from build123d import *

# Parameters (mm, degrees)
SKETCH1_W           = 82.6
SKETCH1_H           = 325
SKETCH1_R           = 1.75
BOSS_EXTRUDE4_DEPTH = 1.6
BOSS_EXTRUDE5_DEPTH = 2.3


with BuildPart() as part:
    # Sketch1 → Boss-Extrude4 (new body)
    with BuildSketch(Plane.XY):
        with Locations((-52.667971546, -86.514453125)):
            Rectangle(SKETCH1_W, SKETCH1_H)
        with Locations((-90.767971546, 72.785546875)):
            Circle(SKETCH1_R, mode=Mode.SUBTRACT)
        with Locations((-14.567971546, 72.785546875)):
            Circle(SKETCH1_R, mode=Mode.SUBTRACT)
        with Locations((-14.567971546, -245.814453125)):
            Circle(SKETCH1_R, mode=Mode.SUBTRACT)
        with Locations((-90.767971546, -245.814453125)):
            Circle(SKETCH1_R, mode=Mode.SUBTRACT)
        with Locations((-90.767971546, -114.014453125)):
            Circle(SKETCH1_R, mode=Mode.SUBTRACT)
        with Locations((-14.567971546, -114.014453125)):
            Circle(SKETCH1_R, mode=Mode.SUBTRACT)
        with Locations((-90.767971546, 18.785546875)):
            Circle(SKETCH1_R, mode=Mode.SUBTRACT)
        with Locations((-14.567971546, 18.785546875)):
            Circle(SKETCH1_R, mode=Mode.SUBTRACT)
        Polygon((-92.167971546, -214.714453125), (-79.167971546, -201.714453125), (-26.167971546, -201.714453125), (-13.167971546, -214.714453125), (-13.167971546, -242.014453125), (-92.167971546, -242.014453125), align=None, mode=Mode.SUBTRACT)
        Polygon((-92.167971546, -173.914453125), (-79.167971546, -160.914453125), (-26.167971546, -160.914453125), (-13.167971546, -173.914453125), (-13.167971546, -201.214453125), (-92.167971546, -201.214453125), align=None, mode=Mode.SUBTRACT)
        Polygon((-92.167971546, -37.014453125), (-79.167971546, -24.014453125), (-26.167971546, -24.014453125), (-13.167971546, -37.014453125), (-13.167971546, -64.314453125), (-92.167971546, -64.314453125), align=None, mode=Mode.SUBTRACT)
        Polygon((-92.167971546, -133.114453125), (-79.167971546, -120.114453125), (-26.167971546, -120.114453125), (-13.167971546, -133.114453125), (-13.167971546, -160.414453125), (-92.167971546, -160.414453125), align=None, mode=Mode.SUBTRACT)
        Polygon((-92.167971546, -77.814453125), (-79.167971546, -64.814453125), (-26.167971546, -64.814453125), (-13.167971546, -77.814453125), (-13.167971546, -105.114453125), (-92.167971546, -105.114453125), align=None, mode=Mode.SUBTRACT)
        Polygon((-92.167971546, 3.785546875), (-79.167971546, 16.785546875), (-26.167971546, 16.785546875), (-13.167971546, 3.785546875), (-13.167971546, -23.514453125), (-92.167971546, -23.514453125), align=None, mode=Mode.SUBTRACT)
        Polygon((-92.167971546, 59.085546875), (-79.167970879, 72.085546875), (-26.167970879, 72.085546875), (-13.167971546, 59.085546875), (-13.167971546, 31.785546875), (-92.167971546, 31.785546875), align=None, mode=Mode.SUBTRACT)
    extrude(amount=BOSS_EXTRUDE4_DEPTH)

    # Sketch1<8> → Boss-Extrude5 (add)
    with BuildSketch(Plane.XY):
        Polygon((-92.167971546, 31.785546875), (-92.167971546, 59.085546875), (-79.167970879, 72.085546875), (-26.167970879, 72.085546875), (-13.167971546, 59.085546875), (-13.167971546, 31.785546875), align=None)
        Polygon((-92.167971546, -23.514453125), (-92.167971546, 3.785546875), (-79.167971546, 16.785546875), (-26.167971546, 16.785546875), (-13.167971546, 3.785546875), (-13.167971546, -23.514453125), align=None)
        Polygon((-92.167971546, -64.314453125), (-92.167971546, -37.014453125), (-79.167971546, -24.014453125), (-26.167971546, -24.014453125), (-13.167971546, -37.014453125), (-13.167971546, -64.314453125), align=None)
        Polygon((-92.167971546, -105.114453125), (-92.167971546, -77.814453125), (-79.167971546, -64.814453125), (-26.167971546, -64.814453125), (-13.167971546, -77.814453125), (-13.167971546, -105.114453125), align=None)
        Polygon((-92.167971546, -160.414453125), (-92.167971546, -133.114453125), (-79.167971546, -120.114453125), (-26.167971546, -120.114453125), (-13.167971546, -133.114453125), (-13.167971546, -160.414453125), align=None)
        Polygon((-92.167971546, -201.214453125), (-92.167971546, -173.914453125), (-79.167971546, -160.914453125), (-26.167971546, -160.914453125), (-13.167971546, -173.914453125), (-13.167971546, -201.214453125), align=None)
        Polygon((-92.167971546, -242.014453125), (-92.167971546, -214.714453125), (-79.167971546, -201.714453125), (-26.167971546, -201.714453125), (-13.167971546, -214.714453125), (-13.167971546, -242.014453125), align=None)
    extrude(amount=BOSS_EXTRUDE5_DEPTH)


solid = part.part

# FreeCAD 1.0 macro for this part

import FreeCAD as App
import Part
import Sketcher

V = App.Vector
Q = App.Units.Quantity

doc = App.newDocument("Part")
params = doc.addObject("Spreadsheet::Sheet", "Params")
for row, (alias, value) in enumerate([
    ("sketch1_diameter", "3.5 mm"),
    ("sketch1_width", "53 mm"),
    ("sketch1_width2", "79 mm"),
    ("sketch1_height", "325 mm"),
    ("sketch1_width3", "82.6 mm"),
    ("pad1_length", "1.6 mm"),
    ("sketch2_width", "79 mm"),
    ("sketch2_width2", "53 mm"),
    ("sketch2_height", "27.3 mm"),
    ("pad2_length", "2.3 mm"),
], start=1):
    params.set(f"A{row}", alias)
    params.set(f"B{row}", "=" + value)
    params.setAlias(f"B{row}", alias)

body = doc.addObject("PartDesign::Body", "Body")

# Sketch on XY plane
sketch1 = body.newObject("Sketcher::SketchObject", "Sketch")
sketch1.AttachmentSupport = (doc.getObject("XY_Plane"), [""])
sketch1.MapMode = "FlatFace"
sketch1.addGeometry(Part.LineSegment(V(-93.967972, 75.985547, 0), V(-93.967972, -249.014453, 0)), False)
sketch1.addGeometry(Part.LineSegment(V(-93.967972, -249.014453, 0), V(-11.367972, -249.014453, 0)), False)
sketch1.addGeometry(Part.LineSegment(V(-11.367972, -249.014453, 0), V(-11.367972, 75.985547, 0)), False)
sketch1.addGeometry(Part.LineSegment(V(-11.367972, 75.985547, 0), V(-93.967972, 75.985547, 0)), False)
sketch1.addGeometry(Part.Circle(V(-90.767972, -245.814453, 0), V(0, 0, 1), 1.75), False)
sketch1.addGeometry(Part.Circle(V(-90.767972, -114.014453, 0), V(0, 0, 1), 1.75), False)
sketch1.addGeometry(Part.LineSegment(V(-92.167972, -242.014453, 0), V(-92.167972, -214.714453, 0)), False)
sketch1.addGeometry(Part.LineSegment(V(-92.167972, -214.714453, 0), V(-79.167972, -201.714453, 0)), False)
sketch1.addGeometry(Part.LineSegment(V(-79.167972, -201.714453, 0), V(-26.167972, -201.714453, 0)), False)
sketch1.addGeometry(Part.LineSegment(V(-26.167972, -201.714453, 0), V(-13.167972, -214.714453, 0)), False)
sketch1.addGeometry(Part.LineSegment(V(-13.167972, -214.714453, 0), V(-13.167972, -242.014453, 0)), False)
sketch1.addGeometry(Part.LineSegment(V(-13.167972, -242.014453, 0), V(-92.167972, -242.014453, 0)), False)
sketch1.addGeometry(Part.LineSegment(V(-92.167972, -201.214453, 0), V(-92.167972, -173.914453, 0)), False)
sketch1.addGeometry(Part.LineSegment(V(-92.167972, -173.914453, 0), V(-79.167972, -160.914453, 0)), False)
sketch1.addGeometry(Part.LineSegment(V(-79.167972, -160.914453, 0), V(-26.167972, -160.914453, 0)), False)
sketch1.addGeometry(Part.LineSegment(V(-26.167972, -160.914453, 0), V(-13.167972, -173.914453, 0)), False)
sketch1.addGeometry(Part.LineSegment(V(-13.167972, -173.914453, 0), V(-13.167972, -201.214453, 0)), False)
sketch1.addGeometry(Part.LineSegment(V(-13.167972, -201.214453, 0), V(-92.167972, -201.214453, 0)), False)
sketch1.addGeometry(Part.Circle(V(-14.567972, -245.814453, 0), V(0, 0, 1), 1.75), False)
sketch1.addGeometry(Part.LineSegment(V(-92.167972, -160.414453, 0), V(-92.167972, -133.114453, 0)), False)
sketch1.addGeometry(Part.LineSegment(V(-92.167972, -133.114453, 0), V(-79.167972, -120.114453, 0)), False)
sketch1.addGeometry(Part.LineSegment(V(-79.167972, -120.114453, 0), V(-26.167972, -120.114453, 0)), False)
sketch1.addGeometry(Part.LineSegment(V(-26.167972, -120.114453, 0), V(-13.167972, -133.114453, 0)), False)
sketch1.addGeometry(Part.LineSegment(V(-13.167972, -133.114453, 0), V(-13.167972, -160.414453, 0)), False)
sketch1.addGeometry(Part.LineSegment(V(-13.167972, -160.414453, 0), V(-92.167972, -160.414453, 0)), False)
sketch1.addGeometry(Part.Circle(V(-14.567972, -114.014453, 0), V(0, 0, 1), 1.75), False)
sketch1.addGeometry(Part.Circle(V(-90.767972, 18.785547, 0), V(0, 0, 1), 1.75), False)
sketch1.addGeometry(Part.Circle(V(-90.767972, 72.785547, 0), V(0, 0, 1), 1.75), False)
sketch1.addGeometry(Part.LineSegment(V(-92.167972, -105.114453, 0), V(-92.167972, -77.814453, 0)), False)
sketch1.addGeometry(Part.LineSegment(V(-92.167972, -77.814453, 0), V(-79.167972, -64.814453, 0)), False)
sketch1.addGeometry(Part.LineSegment(V(-79.167972, -64.814453, 0), V(-26.167972, -64.814453, 0)), False)
sketch1.addGeometry(Part.LineSegment(V(-26.167972, -64.814453, 0), V(-13.167972, -77.814453, 0)), False)
sketch1.addGeometry(Part.LineSegment(V(-13.167972, -77.814453, 0), V(-13.167972, -105.114453, 0)), False)
sketch1.addGeometry(Part.LineSegment(V(-13.167972, -105.114453, 0), V(-92.167972, -105.114453, 0)), False)
sketch1.addGeometry(Part.LineSegment(V(-92.167972, -64.314453, 0), V(-92.167972, -37.014453, 0)), False)
sketch1.addGeometry(Part.LineSegment(V(-92.167972, -37.014453, 0), V(-79.167972, -24.014453, 0)), False)
sketch1.addGeometry(Part.LineSegment(V(-79.167972, -24.014453, 0), V(-26.167972, -24.014453, 0)), False)
sketch1.addGeometry(Part.LineSegment(V(-26.167972, -24.014453, 0), V(-13.167972, -37.014453, 0)), False)
sketch1.addGeometry(Part.LineSegment(V(-13.167972, -37.014453, 0), V(-13.167972, -64.314453, 0)), False)
sketch1.addGeometry(Part.LineSegment(V(-13.167972, -64.314453, 0), V(-92.167972, -64.314453, 0)), False)
sketch1.addGeometry(Part.LineSegment(V(-92.167972, -23.514453, 0), V(-92.167972, 3.785547, 0)), False)
sketch1.addGeometry(Part.LineSegment(V(-92.167972, 3.785547, 0), V(-79.167972, 16.785547, 0)), False)
sketch1.addGeometry(Part.LineSegment(V(-79.167972, 16.785547, 0), V(-26.167972, 16.785547, 0)), False)
sketch1.addGeometry(Part.LineSegment(V(-26.167972, 16.785547, 0), V(-13.167972, 3.785547, 0)), False)
sketch1.addGeometry(Part.LineSegment(V(-13.167972, 3.785547, 0), V(-13.167972, -23.514453, 0)), False)
sketch1.addGeometry(Part.LineSegment(V(-13.167972, -23.514453, 0), V(-92.167972, -23.514453, 0)), False)
sketch1.addGeometry(Part.LineSegment(V(-92.167972, 31.785547, 0), V(-92.167972, 59.085547, 0)), False)
sketch1.addGeometry(Part.LineSegment(V(-92.167972, 59.085547, 0), V(-79.167971, 72.085547, 0)), False)
sketch1.addGeometry(Part.LineSegment(V(-79.167971, 72.085547, 0), V(-26.167971, 72.085547, 0)), False)
sketch1.addGeometry(Part.LineSegment(V(-26.167971, 72.085547, 0), V(-13.167972, 59.085547, 0)), False)
sketch1.addGeometry(Part.LineSegment(V(-13.167972, 59.085547, 0), V(-13.167972, 31.785547, 0)), False)
sketch1.addGeometry(Part.LineSegment(V(-13.167972, 31.785547, 0), V(-92.167972, 31.785547, 0)), False)
sketch1.addGeometry(Part.Circle(V(-14.567972, 18.785547, 0), V(0, 0, 1), 1.75), False)
sketch1.addGeometry(Part.Circle(V(-14.567972, 72.785547, 0), V(0, 0, 1), 1.75), False)
sketch1.addConstraint(Sketcher.Constraint("Coincident", 0, 2, 1, 1))
sketch1.addConstraint(Sketcher.Constraint("Coincident", 1, 2, 2, 1))
sketch1.addConstraint(Sketcher.Constraint("Coincident", 2, 2, 3, 1))
sketch1.addConstraint(Sketcher.Constraint("Coincident", 3, 2, 0, 1))
sketch1.addConstraint(Sketcher.Constraint("Coincident", 6, 2, 7, 1))
sketch1.addConstraint(Sketcher.Constraint("Coincident", 7, 2, 8, 1))
sketch1.addConstraint(Sketcher.Constraint("Coincident", 8, 2, 9, 1))
sketch1.addConstraint(Sketcher.Constraint("Coincident", 9, 2, 10, 1))
sketch1.addConstraint(Sketcher.Constraint("Coincident", 10, 2, 11, 1))
sketch1.addConstraint(Sketcher.Constraint("Coincident", 11, 2, 6, 1))
sketch1.addConstraint(Sketcher.Constraint("Coincident", 12, 2, 13, 1))
sketch1.addConstraint(Sketcher.Constraint("Coincident", 13, 2, 14, 1))
sketch1.addConstraint(Sketcher.Constraint("Coincident", 14, 2, 15, 1))
sketch1.addConstraint(Sketcher.Constraint("Coincident", 15, 2, 16, 1))
sketch1.addConstraint(Sketcher.Constraint("Coincident", 16, 2, 17, 1))
sketch1.addConstraint(Sketcher.Constraint("Coincident", 17, 2, 12, 1))
sketch1.addConstraint(Sketcher.Constraint("Coincident", 19, 2, 20, 1))
sketch1.addConstraint(Sketcher.Constraint("Coincident", 20, 2, 21, 1))
sketch1.addConstraint(Sketcher.Constraint("Coincident", 21, 2, 22, 1))
sketch1.addConstraint(Sketcher.Constraint("Coincident", 22, 2, 23, 1))
sketch1.addConstraint(Sketcher.Constraint("Coincident", 23, 2, 24, 1))
sketch1.addConstraint(Sketcher.Constraint("Coincident", 24, 2, 19, 1))
sketch1.addConstraint(Sketcher.Constraint("Coincident", 28, 2, 29, 1))
sketch1.addConstraint(Sketcher.Constraint("Coincident", 29, 2, 30, 1))
sketch1.addConstraint(Sketcher.Constraint("Coincident", 30, 2, 31, 1))
sketch1.addConstraint(Sketcher.Constraint("Coincident", 31, 2, 32, 1))
sketch1.addConstraint(Sketcher.Constraint("Coincident", 32, 2, 33, 1))
sketch1.addConstraint(Sketcher.Constraint("Coincident", 33, 2, 28, 1))
sketch1.addConstraint(Sketcher.Constraint("Coincident", 34, 2, 35, 1))
sketch1.addConstraint(Sketcher.Constraint("Coincident", 35, 2, 36, 1))
sketch1.addConstraint(Sketcher.Constraint("Coincident", 36, 2, 37, 1))
sketch1.addConstraint(Sketcher.Constraint("Coincident", 37, 2, 38, 1))
sketch1.addConstraint(Sketcher.Constraint("Coincident", 38, 2, 39, 1))
sketch1.addConstraint(Sketcher.Constraint("Coincident", 39, 2, 34, 1))
sketch1.addConstraint(Sketcher.Constraint("Coincident", 40, 2, 41, 1))
sketch1.addConstraint(Sketcher.Constraint("Coincident", 41, 2, 42, 1))
sketch1.addConstraint(Sketcher.Constraint("Coincident", 42, 2, 43, 1))
sketch1.addConstraint(Sketcher.Constraint("Coincident", 43, 2, 44, 1))
sketch1.addConstraint(Sketcher.Constraint("Coincident", 44, 2, 45, 1))
sketch1.addConstraint(Sketcher.Constraint("Coincident", 45, 2, 40, 1))
sketch1.addConstraint(Sketcher.Constraint("Coincident", 46, 2, 47, 1))
sketch1.addConstraint(Sketcher.Constraint("Coincident", 47, 2, 48, 1))
sketch1.addConstraint(Sketcher.Constraint("Coincident", 48, 2, 49, 1))
sketch1.addConstraint(Sketcher.Constraint("Coincident", 49, 2, 50, 1))
sketch1.addConstraint(Sketcher.Constraint("Coincident", 50, 2, 51, 1))
sketch1.addConstraint(Sketcher.Constraint("Coincident", 51, 2, 46, 1))
sketch1.addConstraint(Sketcher.Constraint("Vertical", 0))
sketch1.addConstraint(Sketcher.Constraint("Horizontal", 1))
sketch1.addConstraint(Sketcher.Constraint("Vertical", 2))
sketch1.addConstraint(Sketcher.Constraint("Horizontal", 3))
sketch1.addConstraint(Sketcher.Constraint("Vertical", 6))
sketch1.addConstraint(Sketcher.Constraint("Horizontal", 8))
sketch1.addConstraint(Sketcher.Constraint("Vertical", 10))
sketch1.addConstraint(Sketcher.Constraint("Horizontal", 11))
sketch1.addConstraint(Sketcher.Constraint("Vertical", 12))
sketch1.addConstraint(Sketcher.Constraint("Horizontal", 14))
sketch1.addConstraint(Sketcher.Constraint("Vertical", 16))
sketch1.addConstraint(Sketcher.Constraint("Horizontal", 17))
sketch1.addConstraint(Sketcher.Constraint("Vertical", 19))
sketch1.addConstraint(Sketcher.Constraint("Horizontal", 21))
sketch1.addConstraint(Sketcher.Constraint("Vertical", 23))
sketch1.addConstraint(Sketcher.Constraint("Horizontal", 24))
sketch1.addConstraint(Sketcher.Constraint("Vertical", 28))
sketch1.addConstraint(Sketcher.Constraint("Horizontal", 30))
sketch1.addConstraint(Sketcher.Constraint("Vertical", 32))
sketch1.addConstraint(Sketcher.Constraint("Horizontal", 33))
sketch1.addConstraint(Sketcher.Constraint("Vertical", 34))
sketch1.addConstraint(Sketcher.Constraint("Horizontal", 36))
sketch1.addConstraint(Sketcher.Constraint("Vertical", 38))
sketch1.addConstraint(Sketcher.Constraint("Horizontal", 39))
sketch1.addConstraint(Sketcher.Constraint("Vertical", 40))
sketch1.addConstraint(Sketcher.Constraint("Horizontal", 42))
sketch1.addConstraint(Sketcher.Constraint("Vertical", 44))
sketch1.addConstraint(Sketcher.Constraint("Horizontal", 45))
sketch1.addConstraint(Sketcher.Constraint("Vertical", 46))
sketch1.addConstraint(Sketcher.Constraint("Horizontal", 48))
sketch1.addConstraint(Sketcher.Constraint("Vertical", 50))
sketch1.addConstraint(Sketcher.Constraint("Horizontal", 51))
sketch1.addConstraint(Sketcher.Constraint("Equal", 4, 5))
sketch1.addConstraint(Sketcher.Constraint("Equal", 5, 18))
sketch1.addConstraint(Sketcher.Constraint("Equal", 18, 25))
sketch1.addConstraint(Sketcher.Constraint("Equal", 25, 26))
sketch1.addConstraint(Sketcher.Constraint("Equal", 26, 27))
sketch1.addConstraint(Sketcher.Constraint("Equal", 27, 52))
sketch1.addConstraint(Sketcher.Constraint("Equal", 52, 53))
sketch1.addConstraint(Sketcher.Constraint("Perpendicular", 7, 9))
sketch1.addConstraint(Sketcher.Constraint("Perpendicular", 9, 13))
sketch1.addConstraint(Sketcher.Constraint("Perpendicular", 13, 15))
sketch1.addConstraint(Sketcher.Constraint("Perpendicular", 15, 20))
sketch1.addConstraint(Sketcher.Constraint("Perpendicular", 20, 22))
sketch1.addConstraint(Sketcher.Constraint("Perpendicular", 22, 29))
sketch1.addConstraint(Sketcher.Constraint("Perpendicular", 29, 31))
sketch1.addConstraint(Sketcher.Constraint("Perpendicular", 31, 35))
sketch1.addConstraint(Sketcher.Constraint("Perpendicular", 35, 37))
sketch1.addConstraint(Sketcher.Constraint("Perpendicular", 37, 41))
sketch1.addConstraint(Sketcher.Constraint("Perpendicular", 41, 43))
sketch1.addConstraint(Sketcher.Constraint("Perpendicular", 43, 47))
sketch1.addConstraint(Sketcher.Constraint("Perpendicular", 47, 49))
sketch1.addConstraint(Sketcher.Constraint("Horizontal", 4, 3, 18, 3))
sketch1.addConstraint(Sketcher.Constraint("Horizontal", 5, 3, 25, 3))
sketch1.addConstraint(Sketcher.Constraint("Horizontal", 26, 3, 52, 3))
sketch1.addConstraint(Sketcher.Constraint("Horizontal", 27, 3, 53, 3))
sketch1.addConstraint(Sketcher.Constraint("Horizontal", 6, 2, 9, 2))
sketch1.addConstraint(Sketcher.Constraint("Horizontal", 12, 2, 15, 2))
sketch1.addConstraint(Sketcher.Constraint("Horizontal", 19, 2, 22, 2))
sketch1.addConstraint(Sketcher.Constraint("Horizontal", 28, 2, 31, 2))
sketch1.addConstraint(Sketcher.Constraint("Horizontal", 34, 2, 37, 2))
sketch1.addConstraint(Sketcher.Constraint("Horizontal", 40, 2, 43, 2))
sketch1.addConstraint(Sketcher.Constraint("Horizontal", 46, 2, 49, 2))
sketch1.addConstraint(Sketcher.Constraint("Vertical", 4, 3, 5, 3))
sketch1.addConstraint(Sketcher.Constraint("Vertical", 18, 3, 25, 3))
sketch1.addConstraint(Sketcher.Constraint("Vertical", 5, 3, 26, 3))
sketch1.addConstraint(Sketcher.Constraint("Vertical", 26, 3, 27, 3))
sketch1.addConstraint(Sketcher.Constraint("Vertical", 25, 3, 52, 3))
sketch1.addConstraint(Sketcher.Constraint("Vertical", 52, 3, 53, 3))
sketch1.addConstraint(Sketcher.Constraint("Vertical", 11, 2, 12, 2))
sketch1.addConstraint(Sketcher.Constraint("Vertical", 7, 2, 13, 2))
sketch1.addConstraint(Sketcher.Constraint("Vertical", 8, 2, 14, 2))
sketch1.addConstraint(Sketcher.Constraint("Vertical", 17, 2, 19, 2))
sketch1.addConstraint(Sketcher.Constraint("Vertical", 13, 2, 20, 2))
sketch1.addConstraint(Sketcher.Constraint("Vertical", 14, 2, 21, 2))
sketch1.addConstraint(Sketcher.Constraint("Vertical", 24, 2, 28, 2))
sketch1.addConstraint(Sketcher.Constraint("Vertical", 20, 2, 29, 2))
sketch1.addConstraint(Sketcher.Constraint("Vertical", 21, 2, 30, 2))
sketch1.addConstraint(Sketcher.Constraint("Vertical", 33, 2, 34, 2))
sketch1.addConstraint(Sketcher.Constraint("Vertical", 29, 2, 35, 2))
sketch1.addConstraint(Sketcher.Constraint("Vertical", 30, 2, 36, 2))
sketch1.addConstraint(Sketcher.Constraint("Vertical", 39, 2, 40, 2))
sketch1.addConstraint(Sketcher.Constraint("Vertical", 35, 2, 41, 2))
sketch1.addConstraint(Sketcher.Constraint("Vertical", 36, 2, 42, 2))
sketch1.addConstraint(Sketcher.Constraint("Vertical", 45, 2, 46, 2))
sketch1.addConstraint(Sketcher.Constraint("Vertical", 41, 2, 47, 2))
sketch1.addConstraint(Sketcher.Constraint("Vertical", 42, 2, 48, 2))
sketch1.addConstraint(Sketcher.Constraint("Equal", 10, 12))
sketch1.addConstraint(Sketcher.Constraint("Equal", 16, 19))
sketch1.addConstraint(Sketcher.Constraint("Equal", 23, 28))
sketch1.addConstraint(Sketcher.Constraint("Equal", 32, 34))
sketch1.addConstraint(Sketcher.Constraint("Equal", 38, 40))
sketch1.addConstraint(Sketcher.Constraint("Equal", 44, 46))
sketch1.addConstraint(Sketcher.Constraint("Equal", 7, 9))
sketch1.addConstraint(Sketcher.Constraint("Diameter", 4, Q("3.5 mm")))
sketch1.addConstraint(Sketcher.Constraint("DistanceX", 8, 1, 8, 2, Q("53 mm")))
sketch1.addConstraint(Sketcher.Constraint("DistanceX", 11, 2, 11, 1, Q("79 mm")))
sketch1.addConstraint(Sketcher.Constraint("DistanceY", 0, 2, 0, 1, Q("325 mm")))
sketch1.addConstraint(Sketcher.Constraint("DistanceX", 1, 1, 1, 2, Q("82.6 mm")))
sketch1.addConstraint(Sketcher.Constraint("DistanceY", 6, 1, 6, 2, Q("27.3 mm")))
sketch1.addConstraint(Sketcher.Constraint("DistanceY", 26, 3, 27, 3, Q("54 mm")))
sketch1.addConstraint(Sketcher.Constraint("DistanceY", 0, 2, 5, 3, Q("135 mm")))
sketch1.addConstraint(Sketcher.Constraint("DistanceY", 1, 2, 10, 2, Q("7 mm")))
sketch1.addConstraint(Sketcher.Constraint("DistanceY", 21, 2, 32, 2, Q("15 mm")))
sketch1.addConstraint(Sketcher.Constraint("DistanceY", 40, 2, 26, 3, Q("15 mm")))
sketch1.addConstraint(Sketcher.Constraint("DistanceY", 52, 3, 50, 2, Q("13 mm")))
sketch1.addConstraint(Sketcher.Constraint("DistanceY", 4, 3, 5, 3, Q("131.8 mm")))
sketch1.addConstraint(Sketcher.Constraint("DistanceX", 4, 3, 18, 3, Q("76.2 mm")))
sketch1.addConstraint(Sketcher.Constraint("DistanceY", 5, 3, 26, 3, Q("132.8 mm")))
sketch1.addConstraint(Sketcher.Constraint("DistanceX", 0, 2, 4, 3, Q("3.2 mm")))
sketch1.addConstraint(Sketcher.Constraint("DistanceX", 6, 2, 4, 3, Q("1.4 mm")))
sketch1.addConstraint(Sketcher.Constraint("DistanceY", 7, 2, 12, 2, Q("27.8 mm")))
sketch1.addConstraint(Sketcher.Constraint("DistanceY", 19, 2, 5, 3, Q("19.1 mm")))
sketch1.addConstraint(Sketcher.Constraint("DistanceY", 29, 2, 34, 2, Q("27.8 mm")))
sketch1.addConstraint(Sketcher.Constraint("DistanceX", 4, 3, -1, 1, Q("90.767972 mm")))
sketch1.addConstraint(Sketcher.Constraint("DistanceY", 4, 3, -1, 1, Q("245.814453 mm")))
sketch1.setExpression("Constraints[140]", "Params.sketch1_diameter")
sketch1.setExpression("Constraints[141]", "Params.sketch1_width")
sketch1.setExpression("Constraints[142]", "Params.sketch1_width2")
sketch1.setExpression("Constraints[143]", "Params.sketch1_height")
sketch1.setExpression("Constraints[144]", "Params.sketch1_width3")
pad1 = body.newObject("PartDesign::Pad", "Pad")
pad1.Profile = sketch1
pad1.setExpression("Length", "Params.pad1_length")

# Sketch on XY plane
sketch2 = body.newObject("Sketcher::SketchObject", "Sketch001")
sketch2.AttachmentSupport = (doc.getObject("XY_Plane"), [""])
sketch2.MapMode = "FlatFace"
sketch2.addGeometry(Part.LineSegment(V(-92.167972, 59.085547, 0), V(-92.167972, 31.785547, 0)), False)
sketch2.addGeometry(Part.LineSegment(V(-92.167972, 31.785547, 0), V(-13.167972, 31.785547, 0)), False)
sketch2.addGeometry(Part.LineSegment(V(-13.167972, 31.785547, 0), V(-13.167972, 59.085547, 0)), False)
sketch2.addGeometry(Part.LineSegment(V(-13.167972, 59.085547, 0), V(-26.167971, 72.085547, 0)), False)
sketch2.addGeometry(Part.LineSegment(V(-26.167971, 72.085547, 0), V(-79.167971, 72.085547, 0)), False)
sketch2.addGeometry(Part.LineSegment(V(-79.167971, 72.085547, 0), V(-92.167972, 59.085547, 0)), False)
sketch2.addGeometry(Part.LineSegment(V(-92.167972, 3.785547, 0), V(-92.167972, -23.514453, 0)), False)
sketch2.addGeometry(Part.LineSegment(V(-92.167972, -23.514453, 0), V(-13.167972, -23.514453, 0)), False)
sketch2.addGeometry(Part.LineSegment(V(-13.167972, -23.514453, 0), V(-13.167972, 3.785547, 0)), False)
sketch2.addGeometry(Part.LineSegment(V(-13.167972, 3.785547, 0), V(-26.167972, 16.785547, 0)), False)
sketch2.addGeometry(Part.LineSegment(V(-26.167972, 16.785547, 0), V(-79.167972, 16.785547, 0)), False)
sketch2.addGeometry(Part.LineSegment(V(-79.167972, 16.785547, 0), V(-92.167972, 3.785547, 0)), False)
sketch2.addGeometry(Part.LineSegment(V(-92.167972, -37.014453, 0), V(-92.167972, -64.314453, 0)), False)
sketch2.addGeometry(Part.LineSegment(V(-92.167972, -64.314453, 0), V(-13.167972, -64.314453, 0)), False)
sketch2.addGeometry(Part.LineSegment(V(-13.167972, -64.314453, 0), V(-13.167972, -37.014453, 0)), False)
sketch2.addGeometry(Part.LineSegment(V(-13.167972, -37.014453, 0), V(-26.167972, -24.014453, 0)), False)
sketch2.addGeometry(Part.LineSegment(V(-26.167972, -24.014453, 0), V(-79.167972, -24.014453, 0)), False)
sketch2.addGeometry(Part.LineSegment(V(-79.167972, -24.014453, 0), V(-92.167972, -37.014453, 0)), False)
sketch2.addGeometry(Part.LineSegment(V(-92.167972, -77.814453, 0), V(-92.167972, -105.114453, 0)), False)
sketch2.addGeometry(Part.LineSegment(V(-92.167972, -105.114453, 0), V(-13.167972, -105.114453, 0)), False)
sketch2.addGeometry(Part.LineSegment(V(-13.167972, -105.114453, 0), V(-13.167972, -77.814453, 0)), False)
sketch2.addGeometry(Part.LineSegment(V(-13.167972, -77.814453, 0), V(-26.167972, -64.814453, 0)), False)
sketch2.addGeometry(Part.LineSegment(V(-26.167972, -64.814453, 0), V(-79.167972, -64.814453, 0)), False)
sketch2.addGeometry(Part.LineSegment(V(-79.167972, -64.814453, 0), V(-92.167972, -77.814453, 0)), False)
sketch2.addGeometry(Part.LineSegment(V(-92.167972, -133.114453, 0), V(-92.167972, -160.414453, 0)), False)
sketch2.addGeometry(Part.LineSegment(V(-92.167972, -160.414453, 0), V(-13.167972, -160.414453, 0)), False)
sketch2.addGeometry(Part.LineSegment(V(-13.167972, -160.414453, 0), V(-13.167972, -133.114453, 0)), False)
sketch2.addGeometry(Part.LineSegment(V(-13.167972, -133.114453, 0), V(-26.167972, -120.114453, 0)), False)
sketch2.addGeometry(Part.LineSegment(V(-26.167972, -120.114453, 0), V(-79.167972, -120.114453, 0)), False)
sketch2.addGeometry(Part.LineSegment(V(-79.167972, -120.114453, 0), V(-92.167972, -133.114453, 0)), False)
sketch2.addGeometry(Part.LineSegment(V(-92.167972, -173.914453, 0), V(-92.167972, -201.214453, 0)), False)
sketch2.addGeometry(Part.LineSegment(V(-92.167972, -201.214453, 0), V(-13.167972, -201.214453, 0)), False)
sketch2.addGeometry(Part.LineSegment(V(-13.167972, -201.214453, 0), V(-13.167972, -173.914453, 0)), False)
sketch2.addGeometry(Part.LineSegment(V(-13.167972, -173.914453, 0), V(-26.167972, -160.914453, 0)), False)
sketch2.addGeometry(Part.LineSegment(V(-26.167972, -160.914453, 0), V(-79.167972, -160.914453, 0)), False)
sketch2.addGeometry(Part.LineSegment(V(-79.167972, -160.914453, 0), V(-92.167972, -173.914453, 0)), False)
sketch2.addGeometry(Part.LineSegment(V(-92.167972, -214.714453, 0), V(-92.167972, -242.014453, 0)), False)
sketch2.addGeometry(Part.LineSegment(V(-92.167972, -242.014453, 0), V(-13.167972, -242.014453, 0)), False)
sketch2.addGeometry(Part.LineSegment(V(-13.167972, -242.014453, 0), V(-13.167972, -214.714453, 0)), False)
sketch2.addGeometry(Part.LineSegment(V(-13.167972, -214.714453, 0), V(-26.167972, -201.714453, 0)), False)
sketch2.addGeometry(Part.LineSegment(V(-26.167972, -201.714453, 0), V(-79.167972, -201.714453, 0)), False)
sketch2.addGeometry(Part.LineSegment(V(-79.167972, -201.714453, 0), V(-92.167972, -214.714453, 0)), False)
sketch2.addConstraint(Sketcher.Constraint("Coincident", 0, 2, 1, 1))
sketch2.addConstraint(Sketcher.Constraint("Coincident", 1, 2, 2, 1))
sketch2.addConstraint(Sketcher.Constraint("Coincident", 2, 2, 3, 1))
sketch2.addConstraint(Sketcher.Constraint("Coincident", 3, 2, 4, 1))
sketch2.addConstraint(Sketcher.Constraint("Coincident", 4, 2, 5, 1))
sketch2.addConstraint(Sketcher.Constraint("Coincident", 5, 2, 0, 1))
sketch2.addConstraint(Sketcher.Constraint("Coincident", 6, 2, 7, 1))
sketch2.addConstraint(Sketcher.Constraint("Coincident", 7, 2, 8, 1))
sketch2.addConstraint(Sketcher.Constraint("Coincident", 8, 2, 9, 1))
sketch2.addConstraint(Sketcher.Constraint("Coincident", 9, 2, 10, 1))
sketch2.addConstraint(Sketcher.Constraint("Coincident", 10, 2, 11, 1))
sketch2.addConstraint(Sketcher.Constraint("Coincident", 11, 2, 6, 1))
sketch2.addConstraint(Sketcher.Constraint("Coincident", 12, 2, 13, 1))
sketch2.addConstraint(Sketcher.Constraint("Coincident", 13, 2, 14, 1))
sketch2.addConstraint(Sketcher.Constraint("Coincident", 14, 2, 15, 1))
sketch2.addConstraint(Sketcher.Constraint("Coincident", 15, 2, 16, 1))
sketch2.addConstraint(Sketcher.Constraint("Coincident", 16, 2, 17, 1))
sketch2.addConstraint(Sketcher.Constraint("Coincident", 17, 2, 12, 1))
sketch2.addConstraint(Sketcher.Constraint("Coincident", 18, 2, 19, 1))
sketch2.addConstraint(Sketcher.Constraint("Coincident", 19, 2, 20, 1))
sketch2.addConstraint(Sketcher.Constraint("Coincident", 20, 2, 21, 1))
sketch2.addConstraint(Sketcher.Constraint("Coincident", 21, 2, 22, 1))
sketch2.addConstraint(Sketcher.Constraint("Coincident", 22, 2, 23, 1))
sketch2.addConstraint(Sketcher.Constraint("Coincident", 23, 2, 18, 1))
sketch2.addConstraint(Sketcher.Constraint("Coincident", 24, 2, 25, 1))
sketch2.addConstraint(Sketcher.Constraint("Coincident", 25, 2, 26, 1))
sketch2.addConstraint(Sketcher.Constraint("Coincident", 26, 2, 27, 1))
sketch2.addConstraint(Sketcher.Constraint("Coincident", 27, 2, 28, 1))
sketch2.addConstraint(Sketcher.Constraint("Coincident", 28, 2, 29, 1))
sketch2.addConstraint(Sketcher.Constraint("Coincident", 29, 2, 24, 1))
sketch2.addConstraint(Sketcher.Constraint("Coincident", 30, 2, 31, 1))
sketch2.addConstraint(Sketcher.Constraint("Coincident", 31, 2, 32, 1))
sketch2.addConstraint(Sketcher.Constraint("Coincident", 32, 2, 33, 1))
sketch2.addConstraint(Sketcher.Constraint("Coincident", 33, 2, 34, 1))
sketch2.addConstraint(Sketcher.Constraint("Coincident", 34, 2, 35, 1))
sketch2.addConstraint(Sketcher.Constraint("Coincident", 35, 2, 30, 1))
sketch2.addConstraint(Sketcher.Constraint("Coincident", 36, 2, 37, 1))
sketch2.addConstraint(Sketcher.Constraint("Coincident", 37, 2, 38, 1))
sketch2.addConstraint(Sketcher.Constraint("Coincident", 38, 2, 39, 1))
sketch2.addConstraint(Sketcher.Constraint("Coincident", 39, 2, 40, 1))
sketch2.addConstraint(Sketcher.Constraint("Coincident", 40, 2, 41, 1))
sketch2.addConstraint(Sketcher.Constraint("Coincident", 41, 2, 36, 1))
sketch2.addConstraint(Sketcher.Constraint("Vertical", 0))
sketch2.addConstraint(Sketcher.Constraint("Horizontal", 1))
sketch2.addConstraint(Sketcher.Constraint("Vertical", 2))
sketch2.addConstraint(Sketcher.Constraint("Horizontal", 4))
sketch2.addConstraint(Sketcher.Constraint("Vertical", 6))
sketch2.addConstraint(Sketcher.Constraint("Horizontal", 7))
sketch2.addConstraint(Sketcher.Constraint("Vertical", 8))
sketch2.addConstraint(Sketcher.Constraint("Horizontal", 10))
sketch2.addConstraint(Sketcher.Constraint("Vertical", 12))
sketch2.addConstraint(Sketcher.Constraint("Horizontal", 13))
sketch2.addConstraint(Sketcher.Constraint("Vertical", 14))
sketch2.addConstraint(Sketcher.Constraint("Horizontal", 16))
sketch2.addConstraint(Sketcher.Constraint("Vertical", 18))
sketch2.addConstraint(Sketcher.Constraint("Horizontal", 19))
sketch2.addConstraint(Sketcher.Constraint("Vertical", 20))
sketch2.addConstraint(Sketcher.Constraint("Horizontal", 22))
sketch2.addConstraint(Sketcher.Constraint("Vertical", 24))
sketch2.addConstraint(Sketcher.Constraint("Horizontal", 25))
sketch2.addConstraint(Sketcher.Constraint("Vertical", 26))
sketch2.addConstraint(Sketcher.Constraint("Horizontal", 28))
sketch2.addConstraint(Sketcher.Constraint("Vertical", 30))
sketch2.addConstraint(Sketcher.Constraint("Horizontal", 31))
sketch2.addConstraint(Sketcher.Constraint("Vertical", 32))
sketch2.addConstraint(Sketcher.Constraint("Horizontal", 34))
sketch2.addConstraint(Sketcher.Constraint("Vertical", 36))
sketch2.addConstraint(Sketcher.Constraint("Horizontal", 37))
sketch2.addConstraint(Sketcher.Constraint("Vertical", 38))
sketch2.addConstraint(Sketcher.Constraint("Horizontal", 40))
sketch2.addConstraint(Sketcher.Constraint("Perpendicular", 3, 5))
sketch2.addConstraint(Sketcher.Constraint("Perpendicular", 5, 9))
sketch2.addConstraint(Sketcher.Constraint("Perpendicular", 9, 11))
sketch2.addConstraint(Sketcher.Constraint("Perpendicular", 11, 15))
sketch2.addConstraint(Sketcher.Constraint("Perpendicular", 15, 17))
sketch2.addConstraint(Sketcher.Constraint("Perpendicular", 17, 21))
sketch2.addConstraint(Sketcher.Constraint("Perpendicular", 21, 23))
sketch2.addConstraint(Sketcher.Constraint("Perpendicular", 23, 27))
sketch2.addConstraint(Sketcher.Constraint("Perpendicular", 27, 29))
sketch2.addConstraint(Sketcher.Constraint("Perpendicular", 29, 33))
sketch2.addConstraint(Sketcher.Constraint("Perpendicular", 33, 35))
sketch2.addConstraint(Sketcher.Constraint("Perpendicular", 35, 39))
sketch2.addConstraint(Sketcher.Constraint("Perpendicular", 39, 41))
sketch2.addConstraint(Sketcher.Constraint("Horizontal", 2, 2, 5, 2))
sketch2.addConstraint(Sketcher.Constraint("Horizontal", 8, 2, 11, 2))
sketch2.addConstraint(Sketcher.Constraint("Horizontal", 14, 2, 17, 2))
sketch2.addConstraint(Sketcher.Constraint("Horizontal", 20, 2, 23, 2))
sketch2.addConstraint(Sketcher.Constraint("Horizontal", 26, 2, 29, 2))
sketch2.addConstraint(Sketcher.Constraint("Horizontal", 32, 2, 35, 2))
sketch2.addConstraint(Sketcher.Constraint("Horizontal", 38, 2, 41, 2))
sketch2.addConstraint(Sketcher.Constraint("Vertical", 5, 2, 6, 2))
sketch2.addConstraint(Sketcher.Constraint("Vertical", 2, 2, 7, 2))
sketch2.addConstraint(Sketcher.Constraint("Vertical", 3, 2, 9, 2))
sketch2.addConstraint(Sketcher.Constraint("Vertical", 11, 2, 12, 2))
sketch2.addConstraint(Sketcher.Constraint("Vertical", 8, 2, 13, 2))
sketch2.addConstraint(Sketcher.Constraint("Vertical", 9, 2, 15, 2))
sketch2.addConstraint(Sketcher.Constraint("Vertical", 17, 2, 18, 2))
sketch2.addConstraint(Sketcher.Constraint("Vertical", 14, 2, 19, 2))
sketch2.addConstraint(Sketcher.Constraint("Vertical", 15, 2, 21, 2))
sketch2.addConstraint(Sketcher.Constraint("Vertical", 23, 2, 24, 2))
sketch2.addConstraint(Sketcher.Constraint("Vertical", 20, 2, 25, 2))
sketch2.addConstraint(Sketcher.Constraint("Vertical", 21, 2, 27, 2))
sketch2.addConstraint(Sketcher.Constraint("Vertical", 29, 2, 30, 2))
sketch2.addConstraint(Sketcher.Constraint("Vertical", 26, 2, 31, 2))
sketch2.addConstraint(Sketcher.Constraint("Vertical", 27, 2, 33, 2))
sketch2.addConstraint(Sketcher.Constraint("Vertical", 35, 2, 36, 2))
sketch2.addConstraint(Sketcher.Constraint("Vertical", 32, 2, 37, 2))
sketch2.addConstraint(Sketcher.Constraint("Vertical", 33, 2, 39, 2))
sketch2.addConstraint(Sketcher.Constraint("Equal", 2, 6))
sketch2.addConstraint(Sketcher.Constraint("Equal", 8, 12))
sketch2.addConstraint(Sketcher.Constraint("Equal", 14, 18))
sketch2.addConstraint(Sketcher.Constraint("Equal", 20, 24))
sketch2.addConstraint(Sketcher.Constraint("Equal", 26, 30))
sketch2.addConstraint(Sketcher.Constraint("Equal", 32, 36))
sketch2.addConstraint(Sketcher.Constraint("Equal", 3, 5))
sketch2.addConstraint(Sketcher.Constraint("DistanceX", 1, 1, 1, 2, Q("79 mm")))
sketch2.addConstraint(Sketcher.Constraint("DistanceX", 4, 2, 4, 1, Q("53 mm")))
sketch2.addConstraint(Sketcher.Constraint("DistanceY", 0, 2, 0, 1, Q("27.3 mm")))
sketch2.addConstraint(Sketcher.Constraint("DistanceY", 8, 2, 1, 2, Q("28 mm")))
sketch2.addConstraint(Sketcher.Constraint("DistanceY", 26, 2, 19, 2, Q("28 mm")))
sketch2.addConstraint(Sketcher.Constraint("DistanceY", 12, 2, 6, 2, Q("40.8 mm")))
sketch2.addConstraint(Sketcher.Constraint("DistanceY", 18, 2, 12, 2, Q("40.8 mm")))
sketch2.addConstraint(Sketcher.Constraint("DistanceY", 30, 2, 24, 2, Q("40.8 mm")))
sketch2.addConstraint(Sketcher.Constraint("DistanceY", 36, 2, 30, 2, Q("40.8 mm")))
sketch2.addConstraint(Sketcher.Constraint("DistanceX", 0, 2, -1, 1, Q("92.167972 mm")))
sketch2.addConstraint(Sketcher.Constraint("DistanceY", -1, 1, 0, 2, Q("31.785547 mm")))
sketch2.setExpression("Constraints[115]", "Params.sketch2_width")
sketch2.setExpression("Constraints[116]", "Params.sketch2_width2")
sketch2.setExpression("Constraints[117]", "Params.sketch2_height")
pad2 = body.newObject("PartDesign::Pad", "Pad001")
pad2.Profile = sketch2
pad2.setExpression("Length", "Params.pad2_length")

doc.recompute()
